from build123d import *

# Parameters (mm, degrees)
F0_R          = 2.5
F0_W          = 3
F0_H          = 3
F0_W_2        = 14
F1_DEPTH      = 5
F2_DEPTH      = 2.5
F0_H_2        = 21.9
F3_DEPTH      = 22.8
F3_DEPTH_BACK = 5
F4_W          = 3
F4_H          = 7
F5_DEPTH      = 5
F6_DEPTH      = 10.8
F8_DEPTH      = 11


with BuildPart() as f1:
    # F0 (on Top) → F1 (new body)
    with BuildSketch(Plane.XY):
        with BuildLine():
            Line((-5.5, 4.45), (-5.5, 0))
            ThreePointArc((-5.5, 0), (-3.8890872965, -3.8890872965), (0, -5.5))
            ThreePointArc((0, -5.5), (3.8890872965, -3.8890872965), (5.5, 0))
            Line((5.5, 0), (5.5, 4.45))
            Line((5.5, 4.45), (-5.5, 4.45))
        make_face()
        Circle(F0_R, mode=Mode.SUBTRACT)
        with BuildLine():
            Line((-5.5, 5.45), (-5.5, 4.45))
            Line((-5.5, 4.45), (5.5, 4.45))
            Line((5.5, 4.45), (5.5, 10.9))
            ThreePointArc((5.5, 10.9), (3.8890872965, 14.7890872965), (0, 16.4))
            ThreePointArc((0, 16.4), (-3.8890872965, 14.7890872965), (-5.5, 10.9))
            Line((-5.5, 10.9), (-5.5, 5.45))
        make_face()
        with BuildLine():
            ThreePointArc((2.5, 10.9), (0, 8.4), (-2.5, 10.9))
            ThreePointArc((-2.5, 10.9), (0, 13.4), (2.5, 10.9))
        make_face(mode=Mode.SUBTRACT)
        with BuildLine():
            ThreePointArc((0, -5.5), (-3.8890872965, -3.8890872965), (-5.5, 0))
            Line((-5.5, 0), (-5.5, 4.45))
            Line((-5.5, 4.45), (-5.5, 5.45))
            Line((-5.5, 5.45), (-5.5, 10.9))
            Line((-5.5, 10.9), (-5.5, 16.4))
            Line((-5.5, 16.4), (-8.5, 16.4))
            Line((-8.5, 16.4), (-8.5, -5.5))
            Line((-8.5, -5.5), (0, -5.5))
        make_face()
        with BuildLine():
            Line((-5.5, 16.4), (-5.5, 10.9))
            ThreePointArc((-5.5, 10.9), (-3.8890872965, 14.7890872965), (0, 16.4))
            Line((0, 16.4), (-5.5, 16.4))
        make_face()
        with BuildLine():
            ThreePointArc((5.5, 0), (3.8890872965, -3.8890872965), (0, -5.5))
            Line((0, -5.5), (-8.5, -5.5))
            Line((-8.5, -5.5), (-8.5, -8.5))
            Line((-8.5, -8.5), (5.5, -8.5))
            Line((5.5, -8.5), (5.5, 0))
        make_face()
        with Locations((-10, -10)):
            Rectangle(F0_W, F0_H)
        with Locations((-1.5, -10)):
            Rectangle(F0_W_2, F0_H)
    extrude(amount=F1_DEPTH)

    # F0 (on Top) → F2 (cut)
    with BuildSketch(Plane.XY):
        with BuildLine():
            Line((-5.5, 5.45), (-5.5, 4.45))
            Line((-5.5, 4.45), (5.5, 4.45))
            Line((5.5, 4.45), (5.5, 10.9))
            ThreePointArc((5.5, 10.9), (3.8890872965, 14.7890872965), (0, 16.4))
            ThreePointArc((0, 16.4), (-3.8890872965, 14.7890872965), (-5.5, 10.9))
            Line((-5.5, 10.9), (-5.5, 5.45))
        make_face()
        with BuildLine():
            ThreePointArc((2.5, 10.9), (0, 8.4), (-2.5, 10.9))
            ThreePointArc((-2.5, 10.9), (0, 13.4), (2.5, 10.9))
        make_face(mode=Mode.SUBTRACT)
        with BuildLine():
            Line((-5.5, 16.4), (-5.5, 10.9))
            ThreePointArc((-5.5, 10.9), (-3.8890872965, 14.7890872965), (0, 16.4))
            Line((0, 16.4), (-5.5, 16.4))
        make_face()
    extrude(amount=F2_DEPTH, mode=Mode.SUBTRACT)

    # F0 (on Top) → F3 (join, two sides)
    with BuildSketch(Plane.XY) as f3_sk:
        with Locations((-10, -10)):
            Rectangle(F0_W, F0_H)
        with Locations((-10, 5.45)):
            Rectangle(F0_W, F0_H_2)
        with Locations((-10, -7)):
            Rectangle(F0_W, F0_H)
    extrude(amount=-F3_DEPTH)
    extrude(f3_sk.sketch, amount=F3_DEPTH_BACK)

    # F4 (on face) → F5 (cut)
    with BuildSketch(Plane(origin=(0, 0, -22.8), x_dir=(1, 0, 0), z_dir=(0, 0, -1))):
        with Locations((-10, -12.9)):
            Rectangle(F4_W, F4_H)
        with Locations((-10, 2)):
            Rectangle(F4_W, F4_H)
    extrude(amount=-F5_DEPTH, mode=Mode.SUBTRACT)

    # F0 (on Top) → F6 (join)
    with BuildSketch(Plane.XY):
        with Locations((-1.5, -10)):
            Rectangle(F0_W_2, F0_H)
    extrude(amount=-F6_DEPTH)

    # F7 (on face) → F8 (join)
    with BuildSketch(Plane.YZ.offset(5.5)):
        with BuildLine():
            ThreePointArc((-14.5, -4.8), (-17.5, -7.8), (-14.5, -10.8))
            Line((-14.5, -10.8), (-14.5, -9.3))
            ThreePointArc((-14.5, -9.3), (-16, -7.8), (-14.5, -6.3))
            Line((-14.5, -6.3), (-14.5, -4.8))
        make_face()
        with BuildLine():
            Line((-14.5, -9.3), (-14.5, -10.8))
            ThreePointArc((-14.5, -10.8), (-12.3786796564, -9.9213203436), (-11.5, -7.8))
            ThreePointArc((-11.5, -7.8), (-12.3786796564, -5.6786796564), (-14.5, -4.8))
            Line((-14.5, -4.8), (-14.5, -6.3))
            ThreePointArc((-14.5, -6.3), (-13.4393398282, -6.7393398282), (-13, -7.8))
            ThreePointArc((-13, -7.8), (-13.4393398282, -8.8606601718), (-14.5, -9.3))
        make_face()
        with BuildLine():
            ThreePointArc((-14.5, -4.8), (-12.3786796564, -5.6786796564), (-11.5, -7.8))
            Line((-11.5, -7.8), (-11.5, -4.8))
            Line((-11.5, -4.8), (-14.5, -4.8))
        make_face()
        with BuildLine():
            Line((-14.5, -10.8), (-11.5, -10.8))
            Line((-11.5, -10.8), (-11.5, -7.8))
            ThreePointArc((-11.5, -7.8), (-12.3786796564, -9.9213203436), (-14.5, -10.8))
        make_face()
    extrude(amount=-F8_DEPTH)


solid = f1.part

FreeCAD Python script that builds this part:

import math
import FreeCAD as App
import Part
import Sketcher

doc = App.newDocument("Part")
body = doc.addObject("PartDesign::Body", "Body")

sketch1 = body.newObject("Sketcher::SketchObject", "Sketch")
sketch1.AttachmentSupport = (doc.getObject("XY_Plane"), [""])
sketch1.MapMode = "FlatFace"
sketch1.addGeometry([
    Part.ArcOfCircle(Part.Circle(App.Vector(0, 10.9, 0), App.Vector(0, 0, 1), 5.5), math.radians(0), math.radians(90)),
    Part.LineSegment(App.Vector(0, 16.4, 0), App.Vector(-8.5, 16.4, 0)),
    Part.LineSegment(App.Vector(-8.5, 16.4, 0), App.Vector(-8.5, -8.5, 0)),
    Part.LineSegment(App.Vector(-8.5, -8.5, 0), App.Vector(-11.5, -8.5, 0)),
    Part.LineSegment(App.Vector(-11.5, -8.5, 0), App.Vector(-11.5, -11.5, 0)),
    Part.LineSegment(App.Vector(-11.5, -11.5, 0), App.Vector(5.5, -11.5, 0)),
    Part.LineSegment(App.Vector(5.5, -11.5, 0), App.Vector(5.5, 10.9, 0)),
    Part.Circle(App.Vector(0, 0, 0), App.Vector(0, 0, 1), 2.5),
    Part.Circle(App.Vector(0, 10.9, 0), App.Vector(0, 0, 1), 2.5),
], False)
sketch1.addConstraint([
    Sketcher.Constraint("Tangent", 0, 2, 1, 1),
    Sketcher.Constraint("Coincident", 1, 2, 2, 1),
    Sketcher.Constraint("Coincident", 2, 2, 3, 1),
    Sketcher.Constraint("Coincident", 3, 2, 4, 1),
    Sketcher.Constraint("Coincident", 4, 2, 5, 1),
    Sketcher.Constraint("Coincident", 5, 2, 6, 1),
    Sketcher.Constraint("Tangent", 6, 2, 0, 1),
    Sketcher.Constraint("Horizontal", 1),
    Sketcher.Constraint("Vertical", 2),
    Sketcher.Constraint("Horizontal", 3),
    Sketcher.Constraint("Vertical", 4),
    Sketcher.Constraint("Horizontal", 5),
    Sketcher.Constraint("Vertical", 6),
    Sketcher.Constraint("Coincident", 7, 3, -1, 1),
    Sketcher.Constraint("Coincident", 8, 3, 0, 3),
    Sketcher.Constraint("Equal", 7, 8),
    Sketcher.Constraint("PointOnObject", 0, 3, -2),
    Sketcher.Constraint("Equal", 3, 4),
    Sketcher.Constraint("Diameter", 7, 5.0),
    Sketcher.Constraint("Radius", 0, 5.5),
    Sketcher.Constraint("DistanceX", 3, 2, 3, 1, 3.0),
    Sketcher.Constraint("DistanceX", 5, 1, 5, 2, 17.0),
    Sketcher.Constraint("DistanceY", 2, 2, 2, 1, 24.9),
    Sketcher.Constraint("DistanceY", -1, 1, 0, 3, 10.9),
])
pad1 = body.newObject("PartDesign::Pad", "Pad")
pad1.Profile = sketch1
pad1.Length = 5

sketch2 = body.newObject("Sketcher::SketchObject", "Sketch001")
sketch2.AttachmentSupport = (doc.getObject("XY_Plane"), [""])
sketch2.MapMode = "FlatFace"
sketch2.addGeometry([
    Part.LineSegment(App.Vector(-5.5, 4.45, 0), App.Vector(5.5, 4.45, 0)),
    Part.LineSegment(App.Vector(5.5, 4.45, 0), App.Vector(5.5, 10.9, 0)),
    Part.ArcOfCircle(Part.Circle(App.Vector(0, 10.9, 0), App.Vector(0, 0, 1), 5.5), math.radians(0), math.radians(90)),
    Part.LineSegment(App.Vector(0, 16.4, 0), App.Vector(-5.5, 16.4, 0)),
    Part.LineSegment(App.Vector(-5.5, 16.4, 0), App.Vector(-5.5, 4.45, 0)),
    Part.Circle(App.Vector(0, 10.9, 0), App.Vector(0, 0, 1), 2.5),
], False)
sketch2.addConstraint([
    Sketcher.Constraint("Coincident", 0, 2, 1, 1),
    Sketcher.Constraint("Tangent", 1, 2, 2, 1),
    Sketcher.Constraint("Tangent", 2, 2, 3, 1),
    Sketcher.Constraint("Coincident", 3, 2, 4, 1),
    Sketcher.Constraint("Coincident", 4, 2, 0, 1),
    Sketcher.Constraint("Horizontal", 0),
    Sketcher.Constraint("Vertical", 1),
    Sketcher.Constraint("Horizontal", 3),
    Sketcher.Constraint("Vertical", 4),
    Sketcher.Constraint("Coincident", 5, 3, 2, 3),
    Sketcher.Constraint("PointOnObject", 2, 3, -2),
    Sketcher.Constraint("Diameter", 5, 5.0),
    Sketcher.Constraint("Radius", 2, 5.5),
    Sketcher.Constraint("DistanceX", 0, 1, 0, 2, 11.0),
    Sketcher.Constraint("DistanceY", 1, 1, 1, 2, 6.45),
    Sketcher.Constraint("DistanceY", -1, 1, 2, 3, 10.9),
])
pocket1 = body.newObject("PartDesign::Pocket", "Pocket")
pocket1.Profile = sketch2
pocket1.Length = 2.5
pocket1.Reversed = True

sketch3 = body.newObject("Sketcher::SketchObject", "Sketch002")
sketch3.AttachmentSupport = (doc.getObject("XY_Plane"), [""])
sketch3.MapMode = "FlatFace"
sketch3.addGeometry([
    Part.LineSegment(App.Vector(-11.5, -11.5, 0), App.Vector(-8.5, -11.5, 0)),
    Part.LineSegment(App.Vector(-8.5, -11.5, 0), App.Vector(-8.5, 16.4, 0)),
    Part.LineSegment(App.Vector(-8.5, 16.4, 0), App.Vector(-11.5, 16.4, 0)),
    Part.LineSegment(App.Vector(-11.5, 16.4, 0), App.Vector(-11.5, -11.5, 0)),
], False)
sketch3.addConstraint([
    Sketcher.Constraint("Coincident", 0, 2, 1, 1),
    Sketcher.Constraint("Coincident", 1, 2, 2, 1),
    Sketcher.Constraint("Coincident", 2, 2, 3, 1),
    Sketcher.Constraint("Coincident", 3, 2, 0, 1),
    Sketcher.Constraint("Horizontal", 0),
    Sketcher.Constraint("Vertical", 1),
    Sketcher.Constraint("Horizontal", 2),
    Sketcher.Constraint("Vertical", 3),
    Sketcher.Constraint("DistanceX", 0, 1, 0, 2, 3.0),
    Sketcher.Constraint("DistanceY", 1, 1, 1, 2, 27.9),
    Sketcher.Constraint("DistanceX", 0, 2, -1, 1, 8.5),
    Sketcher.Constraint("DistanceY", 0, 2, -1, 1, 11.5),
])
pad2 = body.newObject("PartDesign::Pad", "Pad001")
pad2.Profile = sketch3
pad2.Type = "TwoLengths"
pad2.Length = 22.8
pad2.Length2 = 5
pad2.Reversed = True

sketch4 = body.newObject("Sketcher::SketchObject", "Sketch003")
sketch4.AttachmentSupport = (doc.getObject("XY_Plane"), [""])
sketch4.MapMode = "FlatFace"
sketch4.AttachmentOffset = App.Placement(App.Vector(0, 0, -22.8), App.Rotation())
sketch4.addGeometry([
    Part.LineSegment(App.Vector(-11.5, 9.4, 0), App.Vector(-11.5, 16.4, 0)),
    Part.LineSegment(App.Vector(-11.5, 16.4, 0), App.Vector(-8.5, 16.4, 0)),
    Part.LineSegment(App.Vector(-8.5, 16.4, 0), App.Vector(-8.5, 9.4, 0)),
    Part.LineSegment(App.Vector(-8.5, 9.4, 0), App.Vector(-11.5, 9.4, 0)),
    Part.LineSegment(App.Vector(-11.5, -5.5, 0), App.Vector(-11.5, 1.5, 0)),
    Part.LineSegment(App.Vector(-11.5, 1.5, 0), App.Vector(-8.5, 1.5, 0)),
    Part.LineSegment(App.Vector(-8.5, 1.5, 0), App.Vector(-8.5, -5.5, 0)),
    Part.LineSegment(App.Vector(-8.5, -5.5, 0), App.Vector(-11.5, -5.5, 0)),
], False)
sketch4.addConstraint([
    Sketcher.Constraint("Coincident", 0, 2, 1, 1),
    Sketcher.Constraint("Coincident", 1, 2, 2, 1),
    Sketcher.Constraint("Coincident", 2, 2, 3, 1),
    Sketcher.Constraint("Coincident", 3, 2, 0, 1),
    Sketcher.Constraint("Coincident", 4, 2, 5, 1),
    Sketcher.Constraint("Coincident", 5, 2, 6, 1),
    Sketcher.Constraint("Coincident", 6, 2, 7, 1),
    Sketcher.Constraint("Coincident", 7, 2, 4, 1),
    Sketcher.Constraint("Vertical", 0),
    Sketcher.Constraint("Horizontal", 1),
    Sketcher.Constraint("Vertical", 2),
    Sketcher.Constraint("Horizontal", 3),
    Sketcher.Constraint("Vertical", 4),
    Sketcher.Constraint("Horizontal", 5),
    Sketcher.Constraint("Vertical", 6),
    Sketcher.Constraint("Horizontal", 7),
    Sketcher.Constraint("Vertical", 3, 2, 4, 2),
    Sketcher.Constraint("Vertical", 2, 2, 5, 2),
    Sketcher.Constraint("Equal", 2, 4),
    Sketcher.Constraint("DistanceX", 1, 1, 1, 2, 3.0),
    Sketcher.Constraint("DistanceY", 0, 1, 0, 2, 7.0),
    Sketcher.Constraint("DistanceX", 0, 2, -1, 1, 11.5),
    Sketcher.Constraint("DistanceY", -1, 1, 0, 2, 16.4),
    Sketcher.Constraint("DistanceY", -1, 1, 4, 2, 1.5),
])
pocket2 = body.newObject("PartDesign::Pocket", "Pocket001")
pocket2.Profile = sketch4
pocket2.Length = 5
pocket2.Reversed = True

sketch5 = body.newObject("Sketcher::SketchObject", "Sketch004")
sketch5.AttachmentSupport = (doc.getObject("XY_Plane"), [""])
sketch5.MapMode = "FlatFace"
sketch5.addGeometry([
    Part.LineSegment(App.Vector(-8.5, -8.5, 0), App.Vector(-8.5, -11.5, 0)),
    Part.LineSegment(App.Vector(-8.5, -11.5, 0), App.Vector(5.5, -11.5, 0)),
    Part.LineSegment(App.Vector(5.5, -11.5, 0), App.Vector(5.5, -8.5, 0)),
    Part.LineSegment(App.Vector(5.5, -8.5, 0), App.Vector(-8.5, -8.5, 0)),
], False)
sketch5.addConstraint([
    Sketcher.Constraint("Coincident", 0, 2, 1, 1),
    Sketcher.Constraint("Coincident", 1, 2, 2, 1),
    Sketcher.Constraint("Coincident", 2, 2, 3, 1),
    Sketcher.Constraint("Coincident", 3, 2, 0, 1),
    Sketcher.Constraint("Vertical", 0),
    Sketcher.Constraint("Horizontal", 1),
    Sketcher.Constraint("Vertical", 2),
    Sketcher.Constraint("Horizontal", 3),
    Sketcher.Constraint("DistanceX", 1, 1, 1, 2, 14.0),
    Sketcher.Constraint("DistanceY", 0, 2, 0, 1, 3.0),
    Sketcher.Constraint("DistanceX", 0, 2, -1, 1, 8.5),
    Sketcher.Constraint("DistanceY", 0, 2, -1, 1, 11.5),
])
pad3 = body.newObject("PartDesign::Pad", "Pad002")
pad3.Profile = sketch5
pad3.Length = 10.8
pad3.Reversed = True

sketch6 = body.newObject("Sketcher::SketchObject", "Sketch005")
sketch6.AttachmentSupport = (doc.getObject("YZ_Plane"), [""])
sketch6.MapMode = "FlatFace"
sketch6.AttachmentOffset = App.Placement(App.Vector(0, 0, 5.5), App.Rotation())
sketch6.addGeometry([
    Part.ArcOfCircle(Part.Circle(App.Vector(-14.5, -7.8, 0), App.Vector(0, 0, 1), 3), math.radians(90), math.radians(270)),
    Part.LineSegment(App.Vector(-14.5, -10.8, 0), App.Vector(-11.5, -10.8, 0)),
    Part.LineSegment(App.Vector(-11.5, -10.8, 0), App.Vector(-11.5, -4.8, 0)),
    Part.LineSegment(App.Vector(-11.5, -4.8, 0), App.Vector(-14.5, -4.8, 0)),
    Part.ArcOfCircle(Part.Circle(App.Vector(-14.5, -7.8, 0), App.Vector(0, 0, 1), 1.5), math.radians(90), math.radians(270)),
    Part.ArcOfCircle(Part.Circle(App.Vector(-14.5, -7.8, 0), App.Vector(0, 0, 1), 1.5), math.radians(0), math.radians(90)),
    Part.ArcOfCircle(Part.Circle(App.Vector(-14.5, -7.8, 0), App.Vector(0, 0, 1), 1.5), math.radians(-90), math.radians(0)),
], False)
sketch6.addConstraint([
    Sketcher.Constraint("Tangent", 0, 2, 1, 1),
    Sketcher.Constraint("Coincident", 1, 2, 2, 1),
    Sketcher.Constraint("Coincident", 2, 2, 3, 1),
    Sketcher.Constraint("Tangent", 3, 2, 0, 1),
    Sketcher.Constraint("Tangent", 4, 1, 5, 2),
    Sketcher.Constraint("Tangent", 5, 1, 6, 2),
    Sketcher.Constraint("Tangent", 6, 1, 4, 2),
    Sketcher.Constraint("Horizontal", 1),
    Sketcher.Constraint("Vertical", 2),
    Sketcher.Constraint("Horizontal", 3),
    Sketcher.Constraint("Coincident", 4, 3, 0, 3),
    Sketcher.Constraint("Horizontal", 6, 3, 5, 1),
    Sketcher.Constraint("Vertical", 3, 2, 4, 1),
    Sketcher.Constraint("Vertical", 4, 1, 6, 1),
    Sketcher.Constraint("Radius", 0, 3.0),
    Sketcher.Constraint("Radius", 4, 1.5),
    Sketcher.Constraint("DistanceX", 1, 1, 1, 2, 3.0),
    Sketcher.Constraint("DistanceX", 5, 1, -1, 1, 13.0),
    Sketcher.Constraint("DistanceY", 0, 3, -1, 1, 7.8),
])
pad4 = body.newObject("PartDesign::Pad", "Pad003")
pad4.Profile = sketch6
pad4.Length = 11
pad4.Reversed = True

doc.recompute()
